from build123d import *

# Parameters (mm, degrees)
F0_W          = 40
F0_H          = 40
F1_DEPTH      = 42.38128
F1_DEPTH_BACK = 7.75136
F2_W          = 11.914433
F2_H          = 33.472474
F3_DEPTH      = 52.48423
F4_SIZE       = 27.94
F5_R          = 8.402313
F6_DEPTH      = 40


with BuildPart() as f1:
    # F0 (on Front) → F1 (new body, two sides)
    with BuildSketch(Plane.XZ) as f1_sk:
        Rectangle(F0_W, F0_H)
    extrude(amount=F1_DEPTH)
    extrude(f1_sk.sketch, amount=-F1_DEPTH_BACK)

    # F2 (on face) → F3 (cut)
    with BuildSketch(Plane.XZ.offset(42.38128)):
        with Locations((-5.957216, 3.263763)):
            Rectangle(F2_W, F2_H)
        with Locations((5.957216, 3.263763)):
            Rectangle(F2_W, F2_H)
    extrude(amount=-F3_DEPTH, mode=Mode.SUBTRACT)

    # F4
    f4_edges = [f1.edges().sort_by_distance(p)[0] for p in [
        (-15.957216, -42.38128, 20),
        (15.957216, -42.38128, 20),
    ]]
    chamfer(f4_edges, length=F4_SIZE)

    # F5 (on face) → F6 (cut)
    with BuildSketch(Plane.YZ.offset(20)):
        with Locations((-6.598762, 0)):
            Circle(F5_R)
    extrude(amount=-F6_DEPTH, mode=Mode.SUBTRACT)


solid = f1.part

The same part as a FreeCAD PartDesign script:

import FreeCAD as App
import Part
import Sketcher
from FreeCAD import Vector


def edges_at(feature, points):
    """Names of the edges that pass closest to the given points."""
    edges = feature.Shape.Edges
    near = lambda p: min(range(len(edges)), key=lambda i: edges[i].distToShape(Part.Vertex(*p))[0])
    return sorted({f"Edge{near(p) + 1}" for p in points})

doc = App.newDocument("Part")
params = doc.addObject("Spreadsheet::Sheet", "Params")
for row, (alias, value) in enumerate([
    ("sketch1_width", "40 mm"),
    ("pad1_length", "42.38128 mm"),
    ("pad1_length2", "7.75136 mm"),
    ("pocket1_length", "52.48423 mm"),
    ("chamfer_size", "27.94 mm"),
    ("pocket2_length", "40 mm"),
], start=1):
    params.set(f"A{row}", alias)
    params.set(f"B{row}", "=" + value)
    params.setAlias(f"B{row}", alias)

body = doc.addObject("PartDesign::Body", "Body")

# Sketch on XZ plane
sketch1 = body.newObject("Sketcher::SketchObject", "Sketch")
sketch1.AttachmentSupport = (doc.getObject("XZ_Plane"), [""])
sketch1.MapMode = "FlatFace"
sketch1.addGeometry(Part.LineSegment(Vector(-20, 20, 0), Vector(-20, -20, 0)), False)
sketch1.addGeometry(Part.LineSegment(Vector(-20, -20, 0), Vector(20, -20, 0)), False)
sketch1.addGeometry(Part.LineSegment(Vector(20, -20, 0), Vector(20, 20, 0)), False)
sketch1.addGeometry(Part.LineSegment(Vector(20, 20, 0), Vector(-20, 20, 0)), False)
sketch1.addConstraint(Sketcher.Constraint("Coincident", 0, 2, 1, 1))
sketch1.addConstraint(Sketcher.Constraint("Coincident", 1, 2, 2, 1))
sketch1.addConstraint(Sketcher.Constraint("Coincident", 2, 2, 3, 1))
sketch1.addConstraint(Sketcher.Constraint("Coincident", 3, 2, 0, 1))
sketch1.addConstraint(Sketcher.Constraint("Vertical", 0))
sketch1.addConstraint(Sketcher.Constraint("Horizontal", 1))
sketch1.addConstraint(Sketcher.Constraint("Vertical", 2))
sketch1.addConstraint(Sketcher.Constraint("Horizontal", 3))
sketch1.addConstraint(Sketcher.Constraint("Symmetric", 0, 2, 2, 2, -1, 1))
sketch1.addConstraint(Sketcher.Constraint("Equal", 3, 0))
sketch1.addConstraint(Sketcher.Constraint("DistanceX", 1, 1, 1, 2, 40.0))
sketch1.setExpression("Constraints[10]", "Params.sketch1_width")
pad1 = body.newObject("PartDesign::Pad", "Pad")
pad1.Profile = sketch1
pad1.Type = "TwoLengths"
pad1.setExpression("Length", "Params.pad1_length")
pad1.setExpression("Length2", "Params.pad1_length2")

# Sketch on XZ plane
sketch2 = body.newObject("Sketcher::SketchObject", "Sketch001")
sketch2.AttachmentSupport = (doc.getObject("XZ_Plane"), [""])
sketch2.MapMode = "FlatFace"
sketch2.AttachmentOffset = App.Placement(Vector(0, 0, 42.38128), App.Rotation())
sketch2.addGeometry(Part.LineSegment(Vector(-11.914433, 20, 0), Vector(-11.914433, -13.472474, 0)), False)
sketch2.addGeometry(Part.LineSegment(Vector(-11.914433, -13.472474, 0), Vector(11.914433, -13.472474, 0)), False)
sketch2.addGeometry(Part.LineSegment(Vector(11.914433, -13.472474, 0), Vector(11.914433, 20, 0)), False)
sketch2.addGeometry(Part.LineSegment(Vector(11.914433, 20, 0), Vector(-11.914433, 20, 0)), False)
sketch2.addConstraint(Sketcher.Constraint("Coincident", 0, 2, 1, 1))
sketch2.addConstraint(Sketcher.Constraint("Coincident", 1, 2, 2, 1))
sketch2.addConstraint(Sketcher.Constraint("Coincident", 2, 2, 3, 1))
sketch2.addConstraint(Sketcher.Constraint("Coincident", 3, 2, 0, 1))
sketch2.addConstraint(Sketcher.Constraint("Vertical", 0))
sketch2.addConstraint(Sketcher.Constraint("Horizontal", 1))
sketch2.addConstraint(Sketcher.Constraint("Vertical", 2))
sketch2.addConstraint(Sketcher.Constraint("Horizontal", 3))
sketch2.addConstraint(Sketcher.Constraint("DistanceY", -1, 1, 2, 2, 20.0))
sketch2.addConstraint(Sketcher.Constraint("DistanceX", 1, 1, 1, 2, 23.828865))
sketch2.addConstraint(Sketcher.Constraint("DistanceY", 0, 2, 0, 1, 33.472474))
sketch2.addConstraint(Sketcher.Constraint("DistanceX", 0, 2, -1, 1, 11.914433))
pocket1 = body.newObject("PartDesign::Pocket", "Pocket")
pocket1.Profile = sketch2
pocket1.setExpression("Length", "Params.pocket1_length")
doc.recompute()

chamfer = body.newObject("PartDesign::Chamfer", "Chamfer")
chamfer.Base = (pocket1, edges_at(pocket1, [(-15.957, -42.381, 20), (15.957, -42.381, 20)]))
chamfer.setExpression("Size", "Params.chamfer_size")

# Sketch on YZ plane
sketch3 = body.newObject("Sketcher::SketchObject", "Sketch002")
sketch3.AttachmentSupport = (doc.getObject("YZ_Plane"), [""])
sketch3.MapMode = "FlatFace"
sketch3.AttachmentOffset = App.Placement(Vector(0, 0, 20), App.Rotation())
sketch3.addGeometry(Part.Circle(Vector(-6.598762, 0, 0), Vector(0, 0, 1), 8.402313), False)
sketch3.addConstraint(Sketcher.Constraint("PointOnObject", 0, 3, -1))
sketch3.addConstraint(Sketcher.Constraint("Diameter", 0, 16.804626))
sketch3.addConstraint(Sketcher.Constraint("DistanceX", 0, 3, -1, 1, 6.598762))
pocket2 = body.newObject("PartDesign::Pocket", "Pocket001")
pocket2.Profile = sketch3
pocket2.setExpression("Length", "Params.pocket2_length")

doc.recompute()
